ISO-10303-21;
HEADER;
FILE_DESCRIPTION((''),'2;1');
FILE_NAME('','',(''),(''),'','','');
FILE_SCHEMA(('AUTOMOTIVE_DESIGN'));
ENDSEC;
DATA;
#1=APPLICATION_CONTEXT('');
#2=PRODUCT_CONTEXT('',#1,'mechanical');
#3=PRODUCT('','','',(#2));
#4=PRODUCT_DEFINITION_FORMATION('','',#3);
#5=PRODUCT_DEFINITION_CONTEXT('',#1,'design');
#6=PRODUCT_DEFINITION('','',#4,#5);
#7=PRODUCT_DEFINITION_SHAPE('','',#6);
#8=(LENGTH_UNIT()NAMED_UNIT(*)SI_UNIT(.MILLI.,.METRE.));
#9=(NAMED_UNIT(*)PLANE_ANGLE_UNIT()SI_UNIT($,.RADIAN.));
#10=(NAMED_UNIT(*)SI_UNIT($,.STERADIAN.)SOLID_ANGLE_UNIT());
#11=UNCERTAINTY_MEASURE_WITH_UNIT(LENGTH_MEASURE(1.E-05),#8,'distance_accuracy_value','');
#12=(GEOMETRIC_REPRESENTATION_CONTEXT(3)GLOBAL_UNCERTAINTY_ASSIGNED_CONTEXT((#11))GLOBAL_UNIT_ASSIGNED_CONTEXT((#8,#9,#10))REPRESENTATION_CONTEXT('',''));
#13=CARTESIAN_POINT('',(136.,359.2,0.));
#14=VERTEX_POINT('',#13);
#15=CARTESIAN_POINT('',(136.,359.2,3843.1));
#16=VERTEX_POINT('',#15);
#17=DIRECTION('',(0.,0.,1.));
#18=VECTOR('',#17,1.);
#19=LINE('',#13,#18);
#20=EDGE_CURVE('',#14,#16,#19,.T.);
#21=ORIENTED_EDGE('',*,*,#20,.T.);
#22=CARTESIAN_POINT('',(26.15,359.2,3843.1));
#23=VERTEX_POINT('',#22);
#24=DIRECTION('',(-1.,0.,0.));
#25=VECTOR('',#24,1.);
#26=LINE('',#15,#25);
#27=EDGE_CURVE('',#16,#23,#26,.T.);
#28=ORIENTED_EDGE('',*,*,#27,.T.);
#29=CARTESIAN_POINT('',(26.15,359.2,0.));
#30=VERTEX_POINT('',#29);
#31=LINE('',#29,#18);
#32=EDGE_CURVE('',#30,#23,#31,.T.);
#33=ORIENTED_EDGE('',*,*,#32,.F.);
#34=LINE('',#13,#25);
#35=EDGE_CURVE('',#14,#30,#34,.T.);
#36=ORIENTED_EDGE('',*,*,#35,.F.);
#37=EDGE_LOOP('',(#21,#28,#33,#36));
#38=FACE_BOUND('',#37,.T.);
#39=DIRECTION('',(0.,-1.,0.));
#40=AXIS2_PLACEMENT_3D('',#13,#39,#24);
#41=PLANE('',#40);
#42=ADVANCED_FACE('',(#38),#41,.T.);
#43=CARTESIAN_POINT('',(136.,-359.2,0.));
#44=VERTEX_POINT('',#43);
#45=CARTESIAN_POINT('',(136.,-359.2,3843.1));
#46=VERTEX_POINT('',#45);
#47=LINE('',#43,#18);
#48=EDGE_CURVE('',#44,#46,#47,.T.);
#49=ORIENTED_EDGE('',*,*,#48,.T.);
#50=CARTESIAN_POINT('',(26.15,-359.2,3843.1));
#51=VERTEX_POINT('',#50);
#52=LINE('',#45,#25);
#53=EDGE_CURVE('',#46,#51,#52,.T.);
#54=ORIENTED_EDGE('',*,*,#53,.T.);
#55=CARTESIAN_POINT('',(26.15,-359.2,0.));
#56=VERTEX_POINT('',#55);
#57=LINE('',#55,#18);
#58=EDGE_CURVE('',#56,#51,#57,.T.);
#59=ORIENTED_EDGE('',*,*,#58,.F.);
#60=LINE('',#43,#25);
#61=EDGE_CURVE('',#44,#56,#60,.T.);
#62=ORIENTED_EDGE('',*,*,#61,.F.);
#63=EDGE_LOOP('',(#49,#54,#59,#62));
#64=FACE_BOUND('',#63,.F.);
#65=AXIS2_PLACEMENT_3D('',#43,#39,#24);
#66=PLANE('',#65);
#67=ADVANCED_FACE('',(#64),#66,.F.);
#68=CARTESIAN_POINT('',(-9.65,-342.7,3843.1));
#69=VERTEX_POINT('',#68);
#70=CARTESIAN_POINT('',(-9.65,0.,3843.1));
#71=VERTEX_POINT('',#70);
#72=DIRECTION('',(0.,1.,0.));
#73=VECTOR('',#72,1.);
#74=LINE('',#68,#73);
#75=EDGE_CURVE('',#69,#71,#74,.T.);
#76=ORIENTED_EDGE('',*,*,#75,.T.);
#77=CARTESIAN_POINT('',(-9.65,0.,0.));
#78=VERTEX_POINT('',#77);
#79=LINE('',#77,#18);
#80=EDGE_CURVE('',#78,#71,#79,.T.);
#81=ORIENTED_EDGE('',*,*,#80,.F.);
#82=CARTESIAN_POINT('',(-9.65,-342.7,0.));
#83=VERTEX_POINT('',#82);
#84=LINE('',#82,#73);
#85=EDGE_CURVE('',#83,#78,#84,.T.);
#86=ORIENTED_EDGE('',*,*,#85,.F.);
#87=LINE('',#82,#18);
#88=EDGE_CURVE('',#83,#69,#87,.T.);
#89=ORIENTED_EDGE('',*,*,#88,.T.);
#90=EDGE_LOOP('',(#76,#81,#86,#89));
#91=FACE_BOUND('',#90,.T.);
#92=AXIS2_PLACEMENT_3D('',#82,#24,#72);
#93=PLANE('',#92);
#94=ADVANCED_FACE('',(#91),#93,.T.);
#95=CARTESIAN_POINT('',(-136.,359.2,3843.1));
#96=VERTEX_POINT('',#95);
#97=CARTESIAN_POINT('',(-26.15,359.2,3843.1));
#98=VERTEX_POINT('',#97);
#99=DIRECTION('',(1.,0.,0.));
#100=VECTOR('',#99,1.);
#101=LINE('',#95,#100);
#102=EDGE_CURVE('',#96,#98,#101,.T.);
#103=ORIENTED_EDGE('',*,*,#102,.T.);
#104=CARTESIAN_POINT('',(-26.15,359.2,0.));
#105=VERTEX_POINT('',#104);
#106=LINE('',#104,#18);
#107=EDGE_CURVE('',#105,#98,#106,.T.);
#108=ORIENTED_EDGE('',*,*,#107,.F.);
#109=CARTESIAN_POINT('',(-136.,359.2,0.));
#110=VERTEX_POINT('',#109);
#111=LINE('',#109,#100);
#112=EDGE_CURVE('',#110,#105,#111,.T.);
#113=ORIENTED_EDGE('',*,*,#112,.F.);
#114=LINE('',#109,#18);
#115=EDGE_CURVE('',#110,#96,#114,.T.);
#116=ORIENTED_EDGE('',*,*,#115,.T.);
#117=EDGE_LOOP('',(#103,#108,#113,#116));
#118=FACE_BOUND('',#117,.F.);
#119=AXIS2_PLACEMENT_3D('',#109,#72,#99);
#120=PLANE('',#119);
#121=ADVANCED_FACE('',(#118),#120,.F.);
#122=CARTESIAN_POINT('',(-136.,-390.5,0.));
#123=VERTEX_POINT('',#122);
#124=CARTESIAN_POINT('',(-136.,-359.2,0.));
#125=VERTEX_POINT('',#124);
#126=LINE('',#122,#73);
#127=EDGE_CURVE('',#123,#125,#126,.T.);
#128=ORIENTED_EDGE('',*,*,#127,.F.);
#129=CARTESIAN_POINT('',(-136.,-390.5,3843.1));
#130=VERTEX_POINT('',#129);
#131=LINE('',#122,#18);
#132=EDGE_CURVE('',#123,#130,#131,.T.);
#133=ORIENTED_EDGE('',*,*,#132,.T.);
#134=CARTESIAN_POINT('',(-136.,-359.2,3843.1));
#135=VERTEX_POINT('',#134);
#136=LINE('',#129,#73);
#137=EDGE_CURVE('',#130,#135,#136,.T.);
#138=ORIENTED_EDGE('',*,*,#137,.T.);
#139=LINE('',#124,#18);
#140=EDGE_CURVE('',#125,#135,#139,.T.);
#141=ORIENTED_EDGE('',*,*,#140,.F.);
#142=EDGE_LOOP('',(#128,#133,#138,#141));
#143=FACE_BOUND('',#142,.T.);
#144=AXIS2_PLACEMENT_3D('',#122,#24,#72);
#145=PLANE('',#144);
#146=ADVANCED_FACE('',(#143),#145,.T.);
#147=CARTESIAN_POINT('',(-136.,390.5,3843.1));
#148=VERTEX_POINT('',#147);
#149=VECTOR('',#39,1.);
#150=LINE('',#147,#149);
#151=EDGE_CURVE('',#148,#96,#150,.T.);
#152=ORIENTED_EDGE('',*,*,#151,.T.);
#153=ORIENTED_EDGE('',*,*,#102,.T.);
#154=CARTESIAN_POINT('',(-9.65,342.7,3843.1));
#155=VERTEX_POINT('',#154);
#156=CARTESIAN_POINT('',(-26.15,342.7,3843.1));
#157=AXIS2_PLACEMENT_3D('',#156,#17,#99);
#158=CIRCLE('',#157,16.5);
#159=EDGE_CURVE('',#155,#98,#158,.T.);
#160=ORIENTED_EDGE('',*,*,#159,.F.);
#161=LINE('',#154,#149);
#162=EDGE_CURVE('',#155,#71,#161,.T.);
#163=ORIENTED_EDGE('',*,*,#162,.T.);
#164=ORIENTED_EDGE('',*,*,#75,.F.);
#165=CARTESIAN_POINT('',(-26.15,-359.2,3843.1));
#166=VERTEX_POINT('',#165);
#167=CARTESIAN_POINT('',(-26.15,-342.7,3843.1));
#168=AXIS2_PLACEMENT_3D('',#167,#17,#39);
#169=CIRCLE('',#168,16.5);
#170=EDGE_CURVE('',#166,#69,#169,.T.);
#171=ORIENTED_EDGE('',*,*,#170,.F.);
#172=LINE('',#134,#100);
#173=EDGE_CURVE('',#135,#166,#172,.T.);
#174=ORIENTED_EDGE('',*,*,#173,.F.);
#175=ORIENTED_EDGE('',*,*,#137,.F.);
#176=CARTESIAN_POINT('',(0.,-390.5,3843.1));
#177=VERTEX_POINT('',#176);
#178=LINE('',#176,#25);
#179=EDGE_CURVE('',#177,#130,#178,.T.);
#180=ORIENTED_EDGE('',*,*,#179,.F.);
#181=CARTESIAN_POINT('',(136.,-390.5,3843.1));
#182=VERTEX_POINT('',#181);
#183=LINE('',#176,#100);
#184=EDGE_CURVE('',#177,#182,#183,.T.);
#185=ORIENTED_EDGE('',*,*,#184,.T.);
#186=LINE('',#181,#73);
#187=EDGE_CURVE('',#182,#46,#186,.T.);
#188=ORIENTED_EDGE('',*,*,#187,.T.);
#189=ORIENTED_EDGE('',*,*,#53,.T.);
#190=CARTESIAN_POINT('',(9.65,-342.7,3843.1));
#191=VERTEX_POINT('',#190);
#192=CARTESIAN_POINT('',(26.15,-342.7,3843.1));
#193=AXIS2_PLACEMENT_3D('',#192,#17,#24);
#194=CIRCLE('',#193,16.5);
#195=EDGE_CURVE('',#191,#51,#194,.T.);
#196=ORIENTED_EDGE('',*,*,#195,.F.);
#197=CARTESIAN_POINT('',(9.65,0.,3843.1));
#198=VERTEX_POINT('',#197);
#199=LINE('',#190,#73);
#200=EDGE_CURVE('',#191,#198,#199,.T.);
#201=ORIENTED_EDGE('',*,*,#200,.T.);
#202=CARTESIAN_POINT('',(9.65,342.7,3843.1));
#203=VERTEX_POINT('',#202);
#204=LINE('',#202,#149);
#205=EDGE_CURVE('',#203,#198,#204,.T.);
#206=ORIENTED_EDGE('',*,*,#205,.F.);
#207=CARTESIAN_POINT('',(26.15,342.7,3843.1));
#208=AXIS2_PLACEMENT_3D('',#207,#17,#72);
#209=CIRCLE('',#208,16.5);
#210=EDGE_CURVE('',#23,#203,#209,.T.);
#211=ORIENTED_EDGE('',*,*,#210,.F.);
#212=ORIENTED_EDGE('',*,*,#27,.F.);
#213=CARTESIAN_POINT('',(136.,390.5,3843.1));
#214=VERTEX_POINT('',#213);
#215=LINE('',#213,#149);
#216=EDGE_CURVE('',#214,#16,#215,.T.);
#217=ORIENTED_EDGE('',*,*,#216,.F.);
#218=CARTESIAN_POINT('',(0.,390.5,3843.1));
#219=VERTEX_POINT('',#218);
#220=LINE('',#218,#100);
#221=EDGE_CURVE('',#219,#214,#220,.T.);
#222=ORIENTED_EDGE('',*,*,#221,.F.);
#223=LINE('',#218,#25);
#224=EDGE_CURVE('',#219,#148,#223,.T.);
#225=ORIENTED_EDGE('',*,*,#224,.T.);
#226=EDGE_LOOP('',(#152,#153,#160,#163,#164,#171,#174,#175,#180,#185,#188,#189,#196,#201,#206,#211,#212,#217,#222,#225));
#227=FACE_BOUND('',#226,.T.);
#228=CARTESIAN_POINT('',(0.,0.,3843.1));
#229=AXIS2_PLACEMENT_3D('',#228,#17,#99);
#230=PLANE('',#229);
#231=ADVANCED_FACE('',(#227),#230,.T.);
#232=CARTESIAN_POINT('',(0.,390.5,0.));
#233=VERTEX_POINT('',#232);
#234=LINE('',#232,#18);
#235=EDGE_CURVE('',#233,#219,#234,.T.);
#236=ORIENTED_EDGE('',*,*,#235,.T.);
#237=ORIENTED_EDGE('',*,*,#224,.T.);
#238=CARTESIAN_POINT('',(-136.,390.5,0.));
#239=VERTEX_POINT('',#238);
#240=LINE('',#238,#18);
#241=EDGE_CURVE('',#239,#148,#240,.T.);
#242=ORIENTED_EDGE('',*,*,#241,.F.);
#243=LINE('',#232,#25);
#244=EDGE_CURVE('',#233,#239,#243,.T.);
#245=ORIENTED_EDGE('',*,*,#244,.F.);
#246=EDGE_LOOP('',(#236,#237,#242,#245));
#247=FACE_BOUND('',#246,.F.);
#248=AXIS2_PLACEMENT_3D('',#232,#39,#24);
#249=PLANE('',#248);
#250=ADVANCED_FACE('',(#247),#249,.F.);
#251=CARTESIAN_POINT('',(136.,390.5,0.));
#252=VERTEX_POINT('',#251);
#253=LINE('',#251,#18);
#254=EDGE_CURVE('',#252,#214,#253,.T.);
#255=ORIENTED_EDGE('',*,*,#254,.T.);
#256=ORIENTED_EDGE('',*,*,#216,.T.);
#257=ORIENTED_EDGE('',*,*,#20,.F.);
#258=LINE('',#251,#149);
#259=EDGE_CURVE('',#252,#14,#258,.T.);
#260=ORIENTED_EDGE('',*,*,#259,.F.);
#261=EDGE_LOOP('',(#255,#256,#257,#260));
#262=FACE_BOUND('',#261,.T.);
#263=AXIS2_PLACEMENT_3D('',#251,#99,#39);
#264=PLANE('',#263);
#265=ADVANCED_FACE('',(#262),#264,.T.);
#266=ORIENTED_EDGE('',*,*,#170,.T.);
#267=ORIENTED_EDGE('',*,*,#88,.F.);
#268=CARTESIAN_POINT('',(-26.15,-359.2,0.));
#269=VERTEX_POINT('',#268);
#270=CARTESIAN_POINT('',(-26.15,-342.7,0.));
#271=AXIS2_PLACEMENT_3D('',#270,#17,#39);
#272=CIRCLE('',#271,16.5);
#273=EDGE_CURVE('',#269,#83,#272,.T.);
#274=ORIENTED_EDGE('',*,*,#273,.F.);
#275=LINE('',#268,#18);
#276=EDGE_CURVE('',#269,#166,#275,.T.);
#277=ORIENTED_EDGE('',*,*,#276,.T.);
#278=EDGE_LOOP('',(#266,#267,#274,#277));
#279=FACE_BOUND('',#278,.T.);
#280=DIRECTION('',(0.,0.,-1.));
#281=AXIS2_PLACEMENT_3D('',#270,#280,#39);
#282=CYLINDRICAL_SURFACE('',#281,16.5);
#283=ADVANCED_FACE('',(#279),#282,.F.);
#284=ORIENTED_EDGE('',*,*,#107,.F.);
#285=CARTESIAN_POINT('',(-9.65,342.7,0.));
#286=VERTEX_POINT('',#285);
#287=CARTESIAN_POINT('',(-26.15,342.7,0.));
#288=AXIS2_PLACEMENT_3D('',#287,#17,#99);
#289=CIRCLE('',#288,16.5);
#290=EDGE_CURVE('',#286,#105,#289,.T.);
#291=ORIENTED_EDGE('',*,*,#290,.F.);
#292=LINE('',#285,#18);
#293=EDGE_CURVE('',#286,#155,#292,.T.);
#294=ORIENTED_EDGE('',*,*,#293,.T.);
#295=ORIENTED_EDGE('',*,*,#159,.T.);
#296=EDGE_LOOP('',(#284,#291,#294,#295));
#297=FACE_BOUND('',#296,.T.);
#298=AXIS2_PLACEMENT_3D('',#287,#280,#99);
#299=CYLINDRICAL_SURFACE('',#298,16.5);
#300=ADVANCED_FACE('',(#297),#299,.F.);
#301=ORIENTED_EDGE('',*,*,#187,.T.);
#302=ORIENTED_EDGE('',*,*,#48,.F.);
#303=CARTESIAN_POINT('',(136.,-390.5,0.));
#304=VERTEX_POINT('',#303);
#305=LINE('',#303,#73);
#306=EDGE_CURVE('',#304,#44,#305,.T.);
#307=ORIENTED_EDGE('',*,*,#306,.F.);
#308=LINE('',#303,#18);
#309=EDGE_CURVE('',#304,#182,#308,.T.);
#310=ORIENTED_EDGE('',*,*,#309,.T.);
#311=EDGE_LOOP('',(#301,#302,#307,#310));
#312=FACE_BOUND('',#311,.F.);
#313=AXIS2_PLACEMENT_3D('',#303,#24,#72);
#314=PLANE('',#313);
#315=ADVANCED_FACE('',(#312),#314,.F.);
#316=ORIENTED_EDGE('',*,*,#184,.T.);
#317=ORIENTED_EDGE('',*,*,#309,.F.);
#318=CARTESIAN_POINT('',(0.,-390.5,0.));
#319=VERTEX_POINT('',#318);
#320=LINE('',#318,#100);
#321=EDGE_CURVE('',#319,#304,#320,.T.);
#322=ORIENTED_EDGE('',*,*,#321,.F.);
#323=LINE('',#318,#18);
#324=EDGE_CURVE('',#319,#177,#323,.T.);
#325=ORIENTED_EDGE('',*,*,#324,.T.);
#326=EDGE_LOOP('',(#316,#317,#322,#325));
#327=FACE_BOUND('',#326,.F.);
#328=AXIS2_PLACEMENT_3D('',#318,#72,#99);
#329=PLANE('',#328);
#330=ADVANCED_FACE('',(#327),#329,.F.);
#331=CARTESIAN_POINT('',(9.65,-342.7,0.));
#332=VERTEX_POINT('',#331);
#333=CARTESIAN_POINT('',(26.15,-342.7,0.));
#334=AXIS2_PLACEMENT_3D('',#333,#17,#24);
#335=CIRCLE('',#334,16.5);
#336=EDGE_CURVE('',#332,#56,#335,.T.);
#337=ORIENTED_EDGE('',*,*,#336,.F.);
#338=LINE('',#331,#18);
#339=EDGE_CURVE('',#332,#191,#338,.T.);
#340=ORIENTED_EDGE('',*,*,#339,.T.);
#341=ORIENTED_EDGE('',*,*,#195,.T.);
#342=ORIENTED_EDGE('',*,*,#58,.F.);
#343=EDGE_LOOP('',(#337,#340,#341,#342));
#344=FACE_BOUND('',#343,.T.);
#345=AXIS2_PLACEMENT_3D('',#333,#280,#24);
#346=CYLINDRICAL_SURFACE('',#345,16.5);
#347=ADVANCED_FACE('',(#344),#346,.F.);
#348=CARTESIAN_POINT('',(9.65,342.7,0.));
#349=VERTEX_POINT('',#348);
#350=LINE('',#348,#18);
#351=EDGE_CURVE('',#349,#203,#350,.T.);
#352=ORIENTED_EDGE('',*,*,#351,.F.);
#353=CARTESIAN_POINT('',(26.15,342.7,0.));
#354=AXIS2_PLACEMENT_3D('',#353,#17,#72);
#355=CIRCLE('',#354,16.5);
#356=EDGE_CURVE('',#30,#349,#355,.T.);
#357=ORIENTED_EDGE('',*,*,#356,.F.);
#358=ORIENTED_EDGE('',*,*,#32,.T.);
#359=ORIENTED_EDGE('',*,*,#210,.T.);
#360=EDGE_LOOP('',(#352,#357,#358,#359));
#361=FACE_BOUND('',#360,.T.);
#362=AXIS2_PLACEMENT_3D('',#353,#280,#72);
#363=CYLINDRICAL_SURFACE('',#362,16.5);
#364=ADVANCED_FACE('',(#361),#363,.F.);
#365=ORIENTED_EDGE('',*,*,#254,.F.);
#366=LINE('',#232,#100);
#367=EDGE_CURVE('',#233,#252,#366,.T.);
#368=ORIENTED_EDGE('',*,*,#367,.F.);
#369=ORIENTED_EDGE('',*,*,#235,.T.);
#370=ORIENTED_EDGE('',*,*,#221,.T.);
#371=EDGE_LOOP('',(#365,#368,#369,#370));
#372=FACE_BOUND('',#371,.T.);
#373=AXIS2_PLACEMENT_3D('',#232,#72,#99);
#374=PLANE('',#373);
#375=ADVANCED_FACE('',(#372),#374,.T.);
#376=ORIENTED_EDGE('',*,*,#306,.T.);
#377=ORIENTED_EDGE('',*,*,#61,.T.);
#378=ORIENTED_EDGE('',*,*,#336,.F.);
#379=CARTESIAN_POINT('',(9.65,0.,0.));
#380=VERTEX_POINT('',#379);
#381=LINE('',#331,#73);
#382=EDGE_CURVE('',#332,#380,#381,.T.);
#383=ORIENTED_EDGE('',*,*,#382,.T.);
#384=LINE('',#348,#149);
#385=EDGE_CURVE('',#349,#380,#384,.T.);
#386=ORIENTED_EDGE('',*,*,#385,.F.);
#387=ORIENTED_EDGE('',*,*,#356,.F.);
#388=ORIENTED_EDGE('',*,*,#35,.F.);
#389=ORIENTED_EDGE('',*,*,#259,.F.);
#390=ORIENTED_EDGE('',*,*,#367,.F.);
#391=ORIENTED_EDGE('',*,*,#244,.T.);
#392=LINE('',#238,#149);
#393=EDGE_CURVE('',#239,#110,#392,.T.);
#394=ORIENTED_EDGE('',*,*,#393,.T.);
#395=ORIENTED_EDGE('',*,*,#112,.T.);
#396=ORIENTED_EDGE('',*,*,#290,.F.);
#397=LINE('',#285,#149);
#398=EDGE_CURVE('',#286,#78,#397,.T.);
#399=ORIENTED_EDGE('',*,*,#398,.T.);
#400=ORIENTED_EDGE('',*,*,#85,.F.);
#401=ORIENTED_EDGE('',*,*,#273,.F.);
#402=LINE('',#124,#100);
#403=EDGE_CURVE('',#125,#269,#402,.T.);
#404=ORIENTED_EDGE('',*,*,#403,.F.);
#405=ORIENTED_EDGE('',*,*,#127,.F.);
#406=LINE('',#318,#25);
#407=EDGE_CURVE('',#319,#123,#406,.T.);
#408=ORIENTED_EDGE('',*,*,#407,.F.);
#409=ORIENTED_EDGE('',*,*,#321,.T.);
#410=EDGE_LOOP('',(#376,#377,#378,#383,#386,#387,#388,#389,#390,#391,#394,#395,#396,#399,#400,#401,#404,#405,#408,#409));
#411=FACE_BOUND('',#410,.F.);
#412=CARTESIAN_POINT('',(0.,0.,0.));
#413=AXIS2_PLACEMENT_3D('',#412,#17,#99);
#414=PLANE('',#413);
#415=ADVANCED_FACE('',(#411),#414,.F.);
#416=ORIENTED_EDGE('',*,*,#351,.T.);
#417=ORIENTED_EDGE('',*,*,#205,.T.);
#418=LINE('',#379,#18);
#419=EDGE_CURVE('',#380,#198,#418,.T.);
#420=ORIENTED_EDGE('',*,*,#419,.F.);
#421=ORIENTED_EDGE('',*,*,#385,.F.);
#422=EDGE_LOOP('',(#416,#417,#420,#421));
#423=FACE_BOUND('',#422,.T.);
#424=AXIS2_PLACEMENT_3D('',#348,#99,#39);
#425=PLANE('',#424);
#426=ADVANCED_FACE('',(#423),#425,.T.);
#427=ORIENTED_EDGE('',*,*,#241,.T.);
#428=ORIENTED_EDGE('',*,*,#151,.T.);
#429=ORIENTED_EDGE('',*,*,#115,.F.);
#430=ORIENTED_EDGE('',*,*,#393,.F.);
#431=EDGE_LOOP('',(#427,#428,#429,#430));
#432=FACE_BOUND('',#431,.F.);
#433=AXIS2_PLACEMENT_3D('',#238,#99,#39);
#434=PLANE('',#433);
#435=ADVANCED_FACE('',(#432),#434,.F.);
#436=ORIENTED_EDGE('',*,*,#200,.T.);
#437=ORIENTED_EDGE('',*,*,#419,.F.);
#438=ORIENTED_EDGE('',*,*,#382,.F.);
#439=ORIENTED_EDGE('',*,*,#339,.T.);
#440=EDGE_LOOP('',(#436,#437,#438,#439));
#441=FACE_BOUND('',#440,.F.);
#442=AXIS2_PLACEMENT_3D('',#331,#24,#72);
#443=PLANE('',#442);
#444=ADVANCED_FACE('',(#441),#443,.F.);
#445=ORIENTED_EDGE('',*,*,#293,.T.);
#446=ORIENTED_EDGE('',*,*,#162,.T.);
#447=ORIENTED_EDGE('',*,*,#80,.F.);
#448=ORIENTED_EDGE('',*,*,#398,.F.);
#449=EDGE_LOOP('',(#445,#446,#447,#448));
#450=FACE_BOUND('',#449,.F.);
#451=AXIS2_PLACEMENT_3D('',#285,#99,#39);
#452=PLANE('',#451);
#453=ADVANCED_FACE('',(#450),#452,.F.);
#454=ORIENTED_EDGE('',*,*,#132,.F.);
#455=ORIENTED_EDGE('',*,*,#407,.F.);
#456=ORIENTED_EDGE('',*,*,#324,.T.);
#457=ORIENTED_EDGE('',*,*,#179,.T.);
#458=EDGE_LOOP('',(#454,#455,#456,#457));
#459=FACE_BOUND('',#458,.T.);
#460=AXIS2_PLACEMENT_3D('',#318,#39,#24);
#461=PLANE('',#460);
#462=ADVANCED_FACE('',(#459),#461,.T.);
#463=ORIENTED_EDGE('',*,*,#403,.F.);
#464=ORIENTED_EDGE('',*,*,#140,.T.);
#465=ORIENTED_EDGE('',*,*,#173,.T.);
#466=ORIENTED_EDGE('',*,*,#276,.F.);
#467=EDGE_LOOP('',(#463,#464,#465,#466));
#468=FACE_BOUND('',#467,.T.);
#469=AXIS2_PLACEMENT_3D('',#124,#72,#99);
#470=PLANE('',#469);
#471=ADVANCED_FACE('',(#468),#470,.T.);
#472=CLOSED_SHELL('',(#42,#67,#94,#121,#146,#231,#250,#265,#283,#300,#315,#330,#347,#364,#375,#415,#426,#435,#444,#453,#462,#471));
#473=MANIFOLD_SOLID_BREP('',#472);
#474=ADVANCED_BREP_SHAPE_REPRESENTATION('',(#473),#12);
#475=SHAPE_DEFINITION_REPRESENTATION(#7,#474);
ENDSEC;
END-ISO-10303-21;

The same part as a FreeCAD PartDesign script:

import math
import FreeCAD as App
import Part
import Sketcher

V = App.Vector
Q = App.Units.Quantity

doc = App.newDocument("Part")
body = doc.addObject("PartDesign::Body", "Body")

sketch1 = body.newObject("Sketcher::SketchObject", "Sketch")
sketch1.AttachmentSupport = (doc.getObject("XY_Plane"), [""])
sketch1.MapMode = "FlatFace"
sketch1.addGeometry(Part.LineSegment(V(-136, -359, 0), V(-136, -390, 0)), False)
sketch1.addGeometry(Part.LineSegment(V(-136, -390, 0), V(136, -390, 0)), False)
sketch1.addGeometry(Part.LineSegment(V(136, -390, 0), V(136, -359, 0)), False)
sketch1.addGeometry(Part.LineSegment(V(136, -359, 0), V(26, -359, 0)), False)
sketch1.addGeometry(Part.ArcOfCircle(Part.Circle(V(26, -343, 0), V(0, 0, 1), 16), math.radians(180), math.radians(270)), False)
sketch1.addGeometry(Part.LineSegment(V(10, -343, 0), V(10, 343, 0)), False)
sketch1.addGeometry(Part.ArcOfCircle(Part.Circle(V(26, 343, 0), V(0, 0, 1), 16), math.radians(90), math.radians(180)), False)
sketch1.addGeometry(Part.LineSegment(V(26, 359, 0), V(136, 359, 0)), False)
sketch1.addGeometry(Part.LineSegment(V(136, 359, 0), V(136, 390, 0)), False)
sketch1.addGeometry(Part.LineSegment(V(136, 390, 0), V(-136, 390, 0)), False)
sketch1.addGeometry(Part.LineSegment(V(-136, 390, 0), V(-136, 359, 0)), False)
sketch1.addGeometry(Part.LineSegment(V(-136, 359, 0), V(-26, 359, 0)), False)
sketch1.addGeometry(Part.ArcOfCircle(Part.Circle(V(-26, 343, 0), V(0, 0, 1), 16), math.radians(0), math.radians(90)), False)
sketch1.addGeometry(Part.LineSegment(V(-10, 343, 0), V(-10, -343, 0)), False)
sketch1.addGeometry(Part.ArcOfCircle(Part.Circle(V(-26, -343, 0), V(0, 0, 1), 16), math.radians(-90), math.radians(0)), False)
sketch1.addGeometry(Part.LineSegment(V(-26, -359, 0), V(-136, -359, 0)), False)
sketch1.addConstraint(Sketcher.Constraint("Coincident", 0, 2, 1, 1))
sketch1.addConstraint(Sketcher.Constraint("Coincident", 1, 2, 2, 1))
sketch1.addConstraint(Sketcher.Constraint("Coincident", 2, 2, 3, 1))
sketch1.addConstraint(Sketcher.Constraint("Tangent", 3, 2, 4, 2))
sketch1.addConstraint(Sketcher.Constraint("Tangent", 4, 1, 5, 1))
sketch1.addConstraint(Sketcher.Constraint("Tangent", 5, 2, 6, 2))
sketch1.addConstraint(Sketcher.Constraint("Tangent", 6, 1, 7, 1))
sketch1.addConstraint(Sketcher.Constraint("Coincident", 7, 2, 8, 1))
sketch1.addConstraint(Sketcher.Constraint("Coincident", 8, 2, 9, 1))
sketch1.addConstraint(Sketcher.Constraint("Coincident", 9, 2, 10, 1))
sketch1.addConstraint(Sketcher.Constraint("Coincident", 10, 2, 11, 1))
sketch1.addConstraint(Sketcher.Constraint("Tangent", 11, 2, 12, 2))
sketch1.addConstraint(Sketcher.Constraint("Tangent", 12, 1, 13, 1))
sketch1.addConstraint(Sketcher.Constraint("Tangent", 13, 2, 14, 2))
sketch1.addConstraint(Sketcher.Constraint("Tangent", 14, 1, 15, 1))
sketch1.addConstraint(Sketcher.Constraint("Coincident", 15, 2, 0, 1))
sketch1.addConstraint(Sketcher.Constraint("Vertical", 0))
sketch1.addConstraint(Sketcher.Constraint("Horizontal", 1))
sketch1.addConstraint(Sketcher.Constraint("Vertical", 2))
sketch1.addConstraint(Sketcher.Constraint("Horizontal", 3))
sketch1.addConstraint(Sketcher.Constraint("Vertical", 5))
sketch1.addConstraint(Sketcher.Constraint("Horizontal", 7))
sketch1.addConstraint(Sketcher.Constraint("Vertical", 8))
sketch1.addConstraint(Sketcher.Constraint("Horizontal", 9))
sketch1.addConstraint(Sketcher.Constraint("Vertical", 10))
sketch1.addConstraint(Sketcher.Constraint("Horizontal", 11))
sketch1.addConstraint(Sketcher.Constraint("Vertical", 13))
sketch1.addConstraint(Sketcher.Constraint("Horizontal", 15))
sketch1.addConstraint(Sketcher.Constraint("Equal", 4, 6))
sketch1.addConstraint(Sketcher.Constraint("Equal", 6, 12))
sketch1.addConstraint(Sketcher.Constraint("Equal", 12, 14))
sketch1.addConstraint(Sketcher.Constraint("Symmetric", 4, 3, 12, 3, -1, 1))
sketch1.addConstraint(Sketcher.Constraint("Symmetric", 0, 2, 8, 2, -1, 1))
sketch1.addConstraint(Sketcher.Constraint("Symmetric", 7, 2, 10, 2, -2))
sketch1.addConstraint(Sketcher.Constraint("Symmetric", 2, 2, 15, 2, -2))
sketch1.addConstraint(Sketcher.Constraint("Radius", 4, Q("16.5 mm")))
sketch1.addConstraint(Sketcher.Constraint("DistanceY", 0, 2, 0, 1, Q("31.3 mm")))
sketch1.addConstraint(Sketcher.Constraint("DistanceX", 0, 2, -1, 1, Q("136 mm")))
sketch1.addConstraint(Sketcher.Constraint("DistanceY", 0, 2, -1, 1, Q("390.5 mm")))
sketch1.addConstraint(Sketcher.Constraint("DistanceX", -1, 1, 4, 1, Q("9.65 mm")))
pad1 = body.newObject("PartDesign::Pad", "Pad")
pad1.Profile = sketch1
pad1.Length = 3843.1

doc.recompute()
